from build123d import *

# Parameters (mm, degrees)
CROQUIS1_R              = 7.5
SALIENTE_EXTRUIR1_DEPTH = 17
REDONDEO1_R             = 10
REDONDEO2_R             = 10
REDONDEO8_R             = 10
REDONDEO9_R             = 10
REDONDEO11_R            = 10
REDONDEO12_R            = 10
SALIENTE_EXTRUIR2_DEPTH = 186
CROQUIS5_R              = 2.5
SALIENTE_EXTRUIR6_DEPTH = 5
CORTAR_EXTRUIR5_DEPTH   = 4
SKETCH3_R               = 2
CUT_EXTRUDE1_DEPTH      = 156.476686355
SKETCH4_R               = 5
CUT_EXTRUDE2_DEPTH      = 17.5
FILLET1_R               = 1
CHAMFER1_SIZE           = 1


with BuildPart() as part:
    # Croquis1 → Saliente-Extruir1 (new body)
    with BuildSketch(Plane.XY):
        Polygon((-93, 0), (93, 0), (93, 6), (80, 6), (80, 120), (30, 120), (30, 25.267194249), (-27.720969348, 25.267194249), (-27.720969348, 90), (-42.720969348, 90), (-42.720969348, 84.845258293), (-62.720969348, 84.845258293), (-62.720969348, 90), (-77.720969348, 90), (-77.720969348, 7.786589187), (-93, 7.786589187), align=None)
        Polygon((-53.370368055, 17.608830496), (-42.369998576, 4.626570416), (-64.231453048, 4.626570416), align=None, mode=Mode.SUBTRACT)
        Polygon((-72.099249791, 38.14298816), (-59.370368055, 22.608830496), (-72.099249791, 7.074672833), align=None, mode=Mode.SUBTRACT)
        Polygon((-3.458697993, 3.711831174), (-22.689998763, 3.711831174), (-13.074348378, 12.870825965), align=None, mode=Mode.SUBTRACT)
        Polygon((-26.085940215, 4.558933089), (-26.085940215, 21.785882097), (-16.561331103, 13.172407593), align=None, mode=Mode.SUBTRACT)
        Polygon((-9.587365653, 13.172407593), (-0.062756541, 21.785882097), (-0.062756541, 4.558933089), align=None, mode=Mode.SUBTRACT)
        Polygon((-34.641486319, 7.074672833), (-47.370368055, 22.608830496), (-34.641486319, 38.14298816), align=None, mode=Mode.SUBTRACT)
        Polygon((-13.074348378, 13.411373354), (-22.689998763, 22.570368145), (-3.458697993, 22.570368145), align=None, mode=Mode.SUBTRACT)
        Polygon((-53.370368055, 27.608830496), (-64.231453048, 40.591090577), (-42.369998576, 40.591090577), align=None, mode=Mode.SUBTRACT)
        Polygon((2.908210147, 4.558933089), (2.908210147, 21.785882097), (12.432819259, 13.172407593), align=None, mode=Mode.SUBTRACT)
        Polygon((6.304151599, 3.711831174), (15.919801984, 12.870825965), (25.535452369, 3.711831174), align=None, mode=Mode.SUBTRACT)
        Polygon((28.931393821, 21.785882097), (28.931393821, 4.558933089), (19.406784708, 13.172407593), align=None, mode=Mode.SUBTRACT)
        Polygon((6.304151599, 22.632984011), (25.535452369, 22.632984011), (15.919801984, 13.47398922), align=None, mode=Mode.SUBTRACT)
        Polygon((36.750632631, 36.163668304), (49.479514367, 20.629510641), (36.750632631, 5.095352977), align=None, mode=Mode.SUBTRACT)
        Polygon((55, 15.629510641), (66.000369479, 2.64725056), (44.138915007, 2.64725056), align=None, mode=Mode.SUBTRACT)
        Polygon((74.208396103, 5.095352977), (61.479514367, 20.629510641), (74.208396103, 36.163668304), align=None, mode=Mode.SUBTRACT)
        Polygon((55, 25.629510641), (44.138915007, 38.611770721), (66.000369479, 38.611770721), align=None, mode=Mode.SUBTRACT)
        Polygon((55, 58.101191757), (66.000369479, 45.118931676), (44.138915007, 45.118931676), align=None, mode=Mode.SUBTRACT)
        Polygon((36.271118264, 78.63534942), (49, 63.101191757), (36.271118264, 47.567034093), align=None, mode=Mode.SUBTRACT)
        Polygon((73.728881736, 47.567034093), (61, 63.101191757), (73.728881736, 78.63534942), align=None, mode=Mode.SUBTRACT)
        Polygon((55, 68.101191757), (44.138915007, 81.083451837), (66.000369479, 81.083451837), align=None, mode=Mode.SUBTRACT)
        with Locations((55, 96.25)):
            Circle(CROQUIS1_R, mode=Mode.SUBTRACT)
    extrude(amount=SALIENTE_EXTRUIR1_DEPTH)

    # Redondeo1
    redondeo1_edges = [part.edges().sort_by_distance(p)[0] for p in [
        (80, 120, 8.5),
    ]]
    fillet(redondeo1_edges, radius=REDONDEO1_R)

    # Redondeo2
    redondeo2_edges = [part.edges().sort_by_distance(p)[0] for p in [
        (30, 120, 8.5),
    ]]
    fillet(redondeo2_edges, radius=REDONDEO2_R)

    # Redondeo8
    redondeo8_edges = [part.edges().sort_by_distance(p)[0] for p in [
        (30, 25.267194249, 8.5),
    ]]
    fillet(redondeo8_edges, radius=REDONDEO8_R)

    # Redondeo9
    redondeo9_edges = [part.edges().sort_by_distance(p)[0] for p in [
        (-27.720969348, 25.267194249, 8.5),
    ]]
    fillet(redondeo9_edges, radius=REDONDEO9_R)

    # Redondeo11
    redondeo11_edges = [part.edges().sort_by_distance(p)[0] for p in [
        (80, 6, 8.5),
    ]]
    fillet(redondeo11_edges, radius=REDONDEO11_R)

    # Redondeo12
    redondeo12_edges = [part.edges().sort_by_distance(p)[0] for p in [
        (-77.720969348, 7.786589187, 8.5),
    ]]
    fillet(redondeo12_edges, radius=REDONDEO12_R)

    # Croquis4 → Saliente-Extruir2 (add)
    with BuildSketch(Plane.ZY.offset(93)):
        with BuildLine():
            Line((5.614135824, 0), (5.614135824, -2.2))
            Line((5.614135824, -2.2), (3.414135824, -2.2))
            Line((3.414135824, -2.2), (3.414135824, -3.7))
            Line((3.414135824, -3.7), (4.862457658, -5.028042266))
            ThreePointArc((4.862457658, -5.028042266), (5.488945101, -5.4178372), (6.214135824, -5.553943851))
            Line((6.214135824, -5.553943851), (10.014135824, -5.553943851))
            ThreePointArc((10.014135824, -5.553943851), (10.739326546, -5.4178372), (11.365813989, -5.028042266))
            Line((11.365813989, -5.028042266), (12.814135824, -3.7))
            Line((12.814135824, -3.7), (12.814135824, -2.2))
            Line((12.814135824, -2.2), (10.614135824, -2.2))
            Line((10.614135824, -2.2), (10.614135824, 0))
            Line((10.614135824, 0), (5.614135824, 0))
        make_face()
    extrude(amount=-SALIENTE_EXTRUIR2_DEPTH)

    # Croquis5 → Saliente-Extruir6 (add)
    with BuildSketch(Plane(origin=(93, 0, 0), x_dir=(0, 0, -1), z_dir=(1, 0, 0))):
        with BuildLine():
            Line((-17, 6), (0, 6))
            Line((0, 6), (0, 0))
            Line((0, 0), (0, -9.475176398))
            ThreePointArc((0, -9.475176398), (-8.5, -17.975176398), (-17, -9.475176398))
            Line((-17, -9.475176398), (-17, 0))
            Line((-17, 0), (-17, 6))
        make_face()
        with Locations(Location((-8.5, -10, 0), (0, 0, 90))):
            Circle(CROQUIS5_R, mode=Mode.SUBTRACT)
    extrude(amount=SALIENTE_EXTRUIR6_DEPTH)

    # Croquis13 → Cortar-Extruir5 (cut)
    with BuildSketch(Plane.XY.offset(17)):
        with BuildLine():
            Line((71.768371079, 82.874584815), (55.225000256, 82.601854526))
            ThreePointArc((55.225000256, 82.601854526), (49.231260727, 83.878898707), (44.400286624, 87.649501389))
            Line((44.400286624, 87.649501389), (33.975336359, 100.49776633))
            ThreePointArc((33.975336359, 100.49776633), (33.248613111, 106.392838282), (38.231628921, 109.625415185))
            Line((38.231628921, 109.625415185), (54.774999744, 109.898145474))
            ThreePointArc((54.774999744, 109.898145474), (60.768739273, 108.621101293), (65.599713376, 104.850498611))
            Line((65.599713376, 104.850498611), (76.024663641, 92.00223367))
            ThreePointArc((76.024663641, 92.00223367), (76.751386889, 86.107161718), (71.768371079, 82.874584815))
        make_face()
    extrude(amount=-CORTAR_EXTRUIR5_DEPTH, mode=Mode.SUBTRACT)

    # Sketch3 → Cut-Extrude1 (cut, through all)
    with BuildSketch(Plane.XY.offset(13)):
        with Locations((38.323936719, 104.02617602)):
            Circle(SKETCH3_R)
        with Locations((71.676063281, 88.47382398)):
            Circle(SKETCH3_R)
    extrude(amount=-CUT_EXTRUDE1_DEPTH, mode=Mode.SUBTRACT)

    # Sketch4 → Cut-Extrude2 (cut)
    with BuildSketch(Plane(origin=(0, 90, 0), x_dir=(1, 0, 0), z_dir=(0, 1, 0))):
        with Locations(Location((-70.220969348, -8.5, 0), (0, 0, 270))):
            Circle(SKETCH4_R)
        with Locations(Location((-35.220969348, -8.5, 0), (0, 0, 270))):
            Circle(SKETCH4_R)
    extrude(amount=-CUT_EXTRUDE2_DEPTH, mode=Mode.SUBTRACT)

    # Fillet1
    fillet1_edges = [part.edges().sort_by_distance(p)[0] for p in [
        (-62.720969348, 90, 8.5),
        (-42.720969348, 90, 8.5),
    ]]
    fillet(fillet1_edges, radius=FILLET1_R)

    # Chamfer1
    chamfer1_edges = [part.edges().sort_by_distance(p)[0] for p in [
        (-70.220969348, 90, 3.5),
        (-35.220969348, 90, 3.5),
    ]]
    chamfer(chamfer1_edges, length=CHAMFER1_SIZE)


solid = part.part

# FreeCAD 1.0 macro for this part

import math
import FreeCAD as App
import Part
import Sketcher


def edges_at(feature, points):
    """Names of the edges that pass closest to the given points."""
    edges = feature.Shape.Edges
    near = lambda p: min(range(len(edges)), key=lambda i: edges[i].distToShape(Part.Vertex(*p))[0])
    return sorted({f"Edge{near(p) + 1}" for p in points})

doc = App.newDocument("Part")
params = doc.addObject("Spreadsheet::Sheet", "Params")
for row, (alias, value) in enumerate([
    ("sketch1_diameter", "15 mm"),
    ("sketch1_width", "186 mm"),
    ("sketch1_width2", "13 mm"),
    ("sketch1_width3", "50 mm"),
    ("sketch1_width4", "15 mm"),
    ("pad1_length", "17 mm"),
    ("fillet_radius", "10 mm"),
    ("fillet2_radius", "10 mm"),
    ("fillet3_radius", "10 mm"),
    ("fillet4_radius", "10 mm"),
    ("fillet5_radius", "10 mm"),
    ("fillet6_radius", "10 mm"),
    ("sketch2_radius", "2 mm"),
    ("sketch2_height", "5 mm"),
    ("sketch2_width", "2.2 mm"),
    ("sketch2_width2", "1.5 mm"),
    ("sketch2_height2", "3.8 mm"),
    ("pad2_length", "186 mm"),
    ("sketch3_diameter", "5 mm"),
    ("sketch3_radius", "8.5 mm"),
    ("pad3_length", "5 mm"),
    ("sketch4_radius", "5.6 mm"),
    ("sketch4_radius2", "13.65 mm"),
    ("pocket1_length", "4 mm"),
    ("sketch5_diameter", "4 mm"),
    ("sketch6_diameter", "10 mm"),
    ("pocket3_length", "17.5 mm"),
    ("fillet7_radius", "1 mm"),
    ("chamfer_size", "1 mm"),
], start=1):
    params.set(f"A{row}", alias)
    params.set(f"B{row}", "=" + value)
    params.setAlias(f"B{row}", alias)

body = doc.addObject("PartDesign::Body", "Body")

# Sketch on XY plane
sketch1 = body.newObject("Sketcher::SketchObject", "Sketch")
sketch1.AttachmentSupport = (doc.getObject("XY_Plane"), [""])
sketch1.MapMode = "FlatFace"
sketch1.addGeometry([
    Part.LineSegment(App.Vector(-93, 0, 0), App.Vector(93, 0, 0)),  # 0
    Part.LineSegment(App.Vector(93, 0, 0), App.Vector(93, 6, 0)),  # 1
    Part.LineSegment(App.Vector(93, 6, 0), App.Vector(80, 6, 0)),  # 2
    Part.LineSegment(App.Vector(80, 6, 0), App.Vector(80, 120, 0)),  # 3
    Part.LineSegment(App.Vector(80, 120, 0), App.Vector(30, 120, 0)),  # 4
    Part.LineSegment(App.Vector(30, 120, 0), App.Vector(30, 25, 0)),  # 5
    Part.LineSegment(App.Vector(30, 25, 0), App.Vector(-28, 25, 0)),  # 6
    Part.LineSegment(App.Vector(-28, 25, 0), App.Vector(-28, 90, 0)),  # 7
    Part.LineSegment(App.Vector(-28, 90, 0), App.Vector(-43, 90, 0)),  # 8
    Part.LineSegment(App.Vector(-43, 90, 0), App.Vector(-43, 85, 0)),  # 9
    Part.LineSegment(App.Vector(-43, 85, 0), App.Vector(-63, 85, 0)),  # 10
    Part.LineSegment(App.Vector(-63, 85, 0), App.Vector(-63, 90, 0)),  # 11
    Part.LineSegment(App.Vector(-63, 90, 0), App.Vector(-78, 90, 0)),  # 12
    Part.LineSegment(App.Vector(-78, 90, 0), App.Vector(-78, 8, 0)),  # 13
    Part.LineSegment(App.Vector(-78, 8, 0), App.Vector(-93, 8, 0)),  # 14
    Part.LineSegment(App.Vector(-93, 8, 0), App.Vector(-93, 0, 0)),  # 15
    Part.LineSegment(App.Vector(-64, 5, 0), App.Vector(-53, 18, 0)),  # 16
    Part.LineSegment(App.Vector(-53, 18, 0), App.Vector(-42, 5, 0)),  # 17
    Part.LineSegment(App.Vector(-42, 5, 0), App.Vector(-64, 5, 0)),  # 18
    Part.LineSegment(App.Vector(-72, 7, 0), App.Vector(-72, 38, 0)),  # 19
    Part.LineSegment(App.Vector(-72, 38, 0), App.Vector(-59, 23, 0)),  # 20
    Part.LineSegment(App.Vector(-59, 23, 0), App.Vector(-72, 7, 0)),  # 21
    Part.LineSegment(App.Vector(-35, 38, 0), App.Vector(-35, 7, 0)),  # 22
    Part.LineSegment(App.Vector(-35, 7, 0), App.Vector(-47, 23, 0)),  # 23
    Part.LineSegment(App.Vector(-47, 23, 0), App.Vector(-35, 38, 0)),  # 24
    Part.LineSegment(App.Vector(-17, 13, 0), App.Vector(-26, 5, 0)),  # 25
    Part.LineSegment(App.Vector(-26, 5, 0), App.Vector(-26, 22, 0)),  # 26
    Part.LineSegment(App.Vector(-26, 22, 0), App.Vector(-17, 13, 0)),  # 27
    Part.LineSegment(App.Vector(-13, 13, 0), App.Vector(-3, 4, 0)),  # 28
    Part.LineSegment(App.Vector(-3, 4, 0), App.Vector(-23, 4, 0)),  # 29
    Part.LineSegment(App.Vector(-23, 4, 0), App.Vector(-13, 13, 0)),  # 30
    Part.LineSegment(App.Vector(0, 5, 0), App.Vector(-10, 13, 0)),  # 31
    Part.LineSegment(App.Vector(-10, 13, 0), App.Vector(0, 22, 0)),  # 32
    Part.LineSegment(App.Vector(0, 22, 0), App.Vector(0, 5, 0)),  # 33
    Part.LineSegment(App.Vector(-3, 23, 0), App.Vector(-13, 13, 0)),  # 34
    Part.LineSegment(App.Vector(-13, 13, 0), App.Vector(-23, 23, 0)),  # 35
    Part.LineSegment(App.Vector(-23, 23, 0), App.Vector(-3, 23, 0)),  # 36
    Part.LineSegment(App.Vector(-42, 41, 0), App.Vector(-53, 28, 0)),  # 37
    Part.LineSegment(App.Vector(-53, 28, 0), App.Vector(-64, 41, 0)),  # 38
    Part.LineSegment(App.Vector(-64, 41, 0), App.Vector(-42, 41, 0)),  # 39
    Part.LineSegment(App.Vector(26, 4, 0), App.Vector(6, 4, 0)),  # 40
    Part.LineSegment(App.Vector(6, 4, 0), App.Vector(16, 13, 0)),  # 41
    Part.LineSegment(App.Vector(16, 13, 0), App.Vector(26, 4, 0)),  # 42
    Part.LineSegment(App.Vector(12, 13, 0), App.Vector(3, 5, 0)),  # 43
    Part.LineSegment(App.Vector(3, 5, 0), App.Vector(3, 22, 0)),  # 44
    Part.LineSegment(App.Vector(3, 22, 0), App.Vector(12, 13, 0)),  # 45
    Part.LineSegment(App.Vector(19, 13, 0), App.Vector(29, 22, 0)),  # 46
    Part.LineSegment(App.Vector(29, 22, 0), App.Vector(29, 5, 0)),  # 47
    Part.LineSegment(App.Vector(29, 5, 0), App.Vector(19, 13, 0)),  # 48
    Part.LineSegment(App.Vector(16, 13, 0), App.Vector(6, 23, 0)),  # 49
    Part.LineSegment(App.Vector(6, 23, 0), App.Vector(26, 23, 0)),  # 50
    Part.LineSegment(App.Vector(26, 23, 0), App.Vector(16, 13, 0)),  # 51
    Part.LineSegment(App.Vector(44, 3, 0), App.Vector(55, 16, 0)),  # 52
    Part.LineSegment(App.Vector(55, 16, 0), App.Vector(66, 3, 0)),  # 53
    Part.LineSegment(App.Vector(66, 3, 0), App.Vector(44, 3, 0)),  # 54
    Part.LineSegment(App.Vector(37, 5, 0), App.Vector(37, 36, 0)),  # 55
    Part.LineSegment(App.Vector(37, 36, 0), App.Vector(49, 21, 0)),  # 56
    Part.LineSegment(App.Vector(49, 21, 0), App.Vector(37, 5, 0)),  # 57
    Part.LineSegment(App.Vector(74, 36, 0), App.Vector(74, 5, 0)),  # 58
    Part.LineSegment(App.Vector(74, 5, 0), App.Vector(61, 21, 0)),  # 59
    Part.LineSegment(App.Vector(61, 21, 0), App.Vector(74, 36, 0)),  # 60
    Part.LineSegment(App.Vector(66, 39, 0), App.Vector(55, 26, 0)),  # 61
    Part.LineSegment(App.Vector(55, 26, 0), App.Vector(44, 39, 0)),  # 62
    Part.LineSegment(App.Vector(44, 39, 0), App.Vector(66, 39, 0)),  # 63
    Part.LineSegment(App.Vector(44, 45, 0), App.Vector(55, 58, 0)),  # 64
    Part.LineSegment(App.Vector(55, 58, 0), App.Vector(66, 45, 0)),  # 65
    Part.LineSegment(App.Vector(66, 45, 0), App.Vector(44, 45, 0)),  # 66
    Part.LineSegment(App.Vector(36, 48, 0), App.Vector(36, 79, 0)),  # 67
    Part.LineSegment(App.Vector(36, 79, 0), App.Vector(49, 63, 0)),  # 68
    Part.LineSegment(App.Vector(49, 63, 0), App.Vector(36, 48, 0)),  # 69
    Part.LineSegment(App.Vector(74, 79, 0), App.Vector(74, 48, 0)),  # 70
    Part.LineSegment(App.Vector(74, 48, 0), App.Vector(61, 63, 0)),  # 71
    Part.LineSegment(App.Vector(61, 63, 0), App.Vector(74, 79, 0)),  # 72
    Part.LineSegment(App.Vector(66, 81, 0), App.Vector(55, 68, 0)),  # 73
    Part.LineSegment(App.Vector(55, 68, 0), App.Vector(44, 81, 0)),  # 74
    Part.LineSegment(App.Vector(44, 81, 0), App.Vector(66, 81, 0)),  # 75
    Part.Circle(App.Vector(55, 96, 0), App.Vector(0, 0, 1), 8),  # 76
], False)
sketch1.addConstraint([
    Sketcher.Constraint("Coincident", 0, 2, 1, 1),
    Sketcher.Constraint("Coincident", 1, 2, 2, 1),
    Sketcher.Constraint("Coincident", 2, 2, 3, 1),
    Sketcher.Constraint("Coincident", 3, 2, 4, 1),
    Sketcher.Constraint("Coincident", 4, 2, 5, 1),
    Sketcher.Constraint("Coincident", 5, 2, 6, 1),
    Sketcher.Constraint("Coincident", 6, 2, 7, 1),
    Sketcher.Constraint("Coincident", 7, 2, 8, 1),
    Sketcher.Constraint("Coincident", 8, 2, 9, 1),
    Sketcher.Constraint("Coincident", 9, 2, 10, 1),
    Sketcher.Constraint("Coincident", 10, 2, 11, 1),
    Sketcher.Constraint("Coincident", 11, 2, 12, 1),
    Sketcher.Constraint("Coincident", 12, 2, 13, 1),
    Sketcher.Constraint("Coincident", 13, 2, 14, 1),
    Sketcher.Constraint("Coincident", 14, 2, 15, 1),
    Sketcher.Constraint("Coincident", 15, 2, 0, 1),
    Sketcher.Constraint("Coincident", 16, 2, 17, 1),
    Sketcher.Constraint("Coincident", 17, 2, 18, 1),
    Sketcher.Constraint("Coincident", 18, 2, 16, 1),
    Sketcher.Constraint("Coincident", 19, 2, 20, 1),
    Sketcher.Constraint("Coincident", 20, 2, 21, 1),
    Sketcher.Constraint("Coincident", 21, 2, 19, 1),
    Sketcher.Constraint("Coincident", 22, 2, 23, 1),
    Sketcher.Constraint("Coincident", 23, 2, 24, 1),
    Sketcher.Constraint("Coincident", 24, 2, 22, 1),
    Sketcher.Constraint("Coincident", 25, 2, 26, 1),
    Sketcher.Constraint("Coincident", 26, 2, 27, 1),
    Sketcher.Constraint("Coincident", 27, 2, 25, 1),
    Sketcher.Constraint("Coincident", 28, 2, 29, 1),
    Sketcher.Constraint("Coincident", 29, 2, 30, 1),
    Sketcher.Constraint("Coincident", 30, 2, 28, 1),
    Sketcher.Constraint("Coincident", 31, 2, 32, 1),
    Sketcher.Constraint("Coincident", 32, 2, 33, 1),
    Sketcher.Constraint("Coincident", 33, 2, 31, 1),
    Sketcher.Constraint("Coincident", 34, 2, 35, 1),
    Sketcher.Constraint("Coincident", 35, 2, 36, 1),
    Sketcher.Constraint("Coincident", 36, 2, 34, 1),
    Sketcher.Constraint("Coincident", 37, 2, 38, 1),
    Sketcher.Constraint("Coincident", 38, 2, 39, 1),
    Sketcher.Constraint("Coincident", 39, 2, 37, 1),
    Sketcher.Constraint("Coincident", 40, 2, 41, 1),
    Sketcher.Constraint("Coincident", 41, 2, 42, 1),
    Sketcher.Constraint("Coincident", 42, 2, 40, 1),
    Sketcher.Constraint("Coincident", 43, 2, 44, 1),
    Sketcher.Constraint("Coincident", 44, 2, 45, 1),
    Sketcher.Constraint("Coincident", 45, 2, 43, 1),
    Sketcher.Constraint("Coincident", 46, 2, 47, 1),
    Sketcher.Constraint("Coincident", 47, 2, 48, 1),
    Sketcher.Constraint("Coincident", 48, 2, 46, 1),
    Sketcher.Constraint("Coincident", 49, 2, 50, 1),
    Sketcher.Constraint("Coincident", 50, 2, 51, 1),
    Sketcher.Constraint("Coincident", 51, 2, 49, 1),
    Sketcher.Constraint("Coincident", 52, 2, 53, 1),
    Sketcher.Constraint("Coincident", 53, 2, 54, 1),
    Sketcher.Constraint("Coincident", 54, 2, 52, 1),
    Sketcher.Constraint("Coincident", 55, 2, 56, 1),
    Sketcher.Constraint("Coincident", 56, 2, 57, 1),
    Sketcher.Constraint("Coincident", 57, 2, 55, 1),
    Sketcher.Constraint("Coincident", 58, 2, 59, 1),
    Sketcher.Constraint("Coincident", 59, 2, 60, 1),
    Sketcher.Constraint("Coincident", 60, 2, 58, 1),
    Sketcher.Constraint("Coincident", 61, 2, 62, 1),
    Sketcher.Constraint("Coincident", 62, 2, 63, 1),
    Sketcher.Constraint("Coincident", 63, 2, 61, 1),
    Sketcher.Constraint("Coincident", 64, 2, 65, 1),
    Sketcher.Constraint("Coincident", 65, 2, 66, 1),
    Sketcher.Constraint("Coincident", 66, 2, 64, 1),
    Sketcher.Constraint("Coincident", 67, 2, 68, 1),
    Sketcher.Constraint("Coincident", 68, 2, 69, 1),
    Sketcher.Constraint("Coincident", 69, 2, 67, 1),
    Sketcher.Constraint("Coincident", 70, 2, 71, 1),
    Sketcher.Constraint("Coincident", 71, 2, 72, 1),
    Sketcher.Constraint("Coincident", 72, 2, 70, 1),
    Sketcher.Constraint("Coincident", 73, 2, 74, 1),
    Sketcher.Constraint("Coincident", 74, 2, 75, 1),
    Sketcher.Constraint("Coincident", 75, 2, 73, 1),
    Sketcher.Constraint("Horizontal", 0),
    Sketcher.Constraint("Vertical", 1),
    Sketcher.Constraint("Horizontal", 2),
    Sketcher.Constraint("Vertical", 3),
    Sketcher.Constraint("Horizontal", 4),
    Sketcher.Constraint("Vertical", 5),
    Sketcher.Constraint("Horizontal", 6),
    Sketcher.Constraint("Vertical", 7),
    Sketcher.Constraint("Horizontal", 8),
    Sketcher.Constraint("Vertical", 9),
    Sketcher.Constraint("Horizontal", 10),
    Sketcher.Constraint("Vertical", 11),
    Sketcher.Constraint("Horizontal", 12),
    Sketcher.Constraint("Vertical", 13),
    Sketcher.Constraint("Horizontal", 14),
    Sketcher.Constraint("Vertical", 15),
    Sketcher.Constraint("Horizontal", 18),
    Sketcher.Constraint("Vertical", 19),
    Sketcher.Constraint("Vertical", 22),
    Sketcher.Constraint("Vertical", 26),
    Sketcher.Constraint("Horizontal", 29),
    Sketcher.Constraint("Vertical", 33),
    Sketcher.Constraint("Horizontal", 36),
    Sketcher.Constraint("Horizontal", 39),
    Sketcher.Constraint("Horizontal", 40),
    Sketcher.Constraint("Vertical", 44),
    Sketcher.Constraint("Vertical", 47),
    Sketcher.Constraint("Horizontal", 50),
    Sketcher.Constraint("Horizontal", 54),
    Sketcher.Constraint("Vertical", 55),
    Sketcher.Constraint("Vertical", 58),
    Sketcher.Constraint("Horizontal", 63),
    Sketcher.Constraint("Horizontal", 66),
    Sketcher.Constraint("Vertical", 67),
    Sketcher.Constraint("Vertical", 70),
    Sketcher.Constraint("Horizontal", 75),
    Sketcher.Constraint("Symmetric", 0, 2, 15, 2, -1, 1),
    Sketcher.Constraint("Parallel", 20, 23),
    Sketcher.Constraint("Parallel", 21, 24),
    Sketcher.Constraint("Parallel", 27, 31),
    Sketcher.Constraint("Parallel", 25, 32),
    Sketcher.Constraint("Parallel", 30, 34),
    Sketcher.Constraint("Parallel", 28, 35),
    Sketcher.Constraint("Parallel", 34, 41),
    Sketcher.Constraint("Parallel", 35, 42),
    Sketcher.Constraint("Parallel", 32, 43),
    Sketcher.Constraint("Parallel", 31, 45),
    Sketcher.Constraint("Parallel", 43, 46),
    Sketcher.Constraint("Parallel", 45, 48),
    Sketcher.Constraint("Parallel", 42, 49),
    Sketcher.Constraint("Parallel", 41, 51),
    Sketcher.Constraint("Parallel", 16, 52),
    Sketcher.Constraint("Parallel", 17, 53),
    Sketcher.Constraint("Parallel", 23, 56),
    Sketcher.Constraint("Parallel", 24, 57),
    Sketcher.Constraint("Parallel", 56, 59),
    Sketcher.Constraint("Parallel", 57, 60),
    Sketcher.Constraint("Parallel", 37, 61),
    Sketcher.Constraint("Parallel", 38, 62),
    Sketcher.Constraint("Parallel", 52, 64),
    Sketcher.Constraint("Parallel", 53, 65),
    Sketcher.Constraint("Parallel", 59, 68),
    Sketcher.Constraint("Parallel", 60, 69),
    Sketcher.Constraint("Parallel", 68, 71),
    Sketcher.Constraint("Parallel", 69, 72),
    Sketcher.Constraint("Parallel", 61, 73),
    Sketcher.Constraint("Parallel", 62, 74),
    Sketcher.Constraint("Horizontal", 8, 2, 11, 2),
    Sketcher.Constraint("Horizontal", 21, 2, 22, 2),
    Sketcher.Constraint("Horizontal", 20, 2, 23, 2),
    Sketcher.Constraint("Horizontal", 19, 2, 24, 2),
    Sketcher.Constraint("Horizontal", 27, 2, 31, 2),
    Sketcher.Constraint("Horizontal", 26, 2, 32, 2),
    Sketcher.Constraint("Horizontal", 25, 2, 33, 2),
    Sketcher.Constraint("Horizontal", 29, 2, 40, 2),
    Sketcher.Constraint("Horizontal", 30, 2, 41, 2),
    Sketcher.Constraint("Horizontal", 33, 2, 43, 2),
    Sketcher.Constraint("Horizontal", 32, 2, 44, 2),
    Sketcher.Constraint("Horizontal", 44, 2, 46, 2),
    Sketcher.Constraint("Horizontal", 43, 2, 47, 2),
    Sketcher.Constraint("Horizontal", 57, 2, 58, 2),
    Sketcher.Constraint("Horizontal", 56, 2, 59, 2),
    Sketcher.Constraint("Horizontal", 69, 2, 70, 2),
    Sketcher.Constraint("Horizontal", 68, 2, 71, 2),
    Sketcher.Constraint("Vertical", 30, 2, 34, 2),
    Sketcher.Constraint("Vertical", 29, 2, 35, 2),
    Sketcher.Constraint("Vertical", 28, 2, 36, 2),
    Sketcher.Constraint("Vertical", 16, 2, 37, 2),
    Sketcher.Constraint("Vertical", 18, 2, 38, 2),
    Sketcher.Constraint("Vertical", 17, 2, 39, 2),
    Sketcher.Constraint("Vertical", 40, 2, 49, 2),
    Sketcher.Constraint("Vertical", 42, 2, 50, 2),
    Sketcher.Constraint("Vertical", 76, 3, 52, 2),
    Sketcher.Constraint("Vertical", 52, 2, 61, 2),
    Sketcher.Constraint("Vertical", 54, 2, 62, 2),
    Sketcher.Constraint("Vertical", 61, 2, 64, 2),
    Sketcher.Constraint("Vertical", 63, 2, 65, 2),
    Sketcher.Constraint("Vertical", 64, 2, 73, 2),
    Sketcher.Constraint("Vertical", 66, 2, 74, 2),
    Sketcher.Constraint("Equal", 8, 12),
    Sketcher.Constraint("Equal", 39, 54),
    Sketcher.Constraint("Equal", 22, 55),
    Sketcher.Constraint("Equal", 58, 67),
    Sketcher.Constraint("Equal", 17, 37),
    Sketcher.Constraint("Diameter", 76, 15.0),
    Sketcher.Constraint("DistanceX", 0, 1, 0, 2, 186.0),
    Sketcher.Constraint("DistanceX", 2, 2, 2, 1, 13.0),
    Sketcher.Constraint("DistanceX", 4, 2, 4, 1, 50.0),
    Sketcher.Constraint("DistanceX", 8, 2, 8, 1, 15.0),
    Sketcher.Constraint("DistanceX", 10, 2, 10, 1, 20.0),
    Sketcher.Constraint("DistanceY", 1, 1, 1, 2, 6.0),
    Sketcher.Constraint("DistanceY", 3, 1, 3, 2, 114.0),
    Sketcher.Constraint("DistanceX", -1, 1, 76, 3, 55.0),
    Sketcher.Constraint("DistanceY", -1, 1, 7, 2, 90.0),
    Sketcher.Constraint("DistanceX", -1, 1, 68, 2, 49.0),
    Sketcher.Constraint("DistanceX", -1, 1, 71, 2, 61.0),
    Sketcher.Constraint("DistanceY", -1, 1, 76, 3, 96.25),
    Sketcher.Constraint("DistanceX", 17, 2, -1, 1, 42.369999),
    Sketcher.Constraint("DistanceX", 29, 2, -1, 1, 22.689999),
    Sketcher.Constraint("DistanceX", 29, 2, 29, 1, 19.231301),
    Sketcher.Constraint("DistanceX", 6, 2, 6, 1, 57.720969),
    Sketcher.Constraint("DistanceY", 9, 2, 9, 1, 5.154742),
    Sketcher.Constraint("DistanceY", 13, 2, 13, 1, 82.213411),
    Sketcher.Constraint("DistanceY", 26, 1, 26, 2, 17.226949),
    Sketcher.Constraint("DistanceX", -1, 1, 41, 2, 15.919802),
    Sketcher.Constraint("Distance", 20, 20.083189),
    Sketcher.Constraint("DistanceX", 18, 2, 18, 1, 21.861454),
    Sketcher.Constraint("DistanceY", 5, 2, 5, 1, 94.732806),
    Sketcher.Constraint("DistanceY", 19, 1, 19, 2, 31.068315),
    Sketcher.Constraint("DistanceX", 16, 2, -1, 1, 53.370368),
    Sketcher.Constraint("DistanceY", -1, 1, 16, 2, 17.60883),
    Sketcher.Constraint("DistanceY", -1, 1, 17, 2, 4.62657),
    Sketcher.Constraint("DistanceX", 19, 2, -1, 1, 72.09925),
    Sketcher.Constraint("DistanceY", -1, 1, 19, 2, 38.142988),
    Sketcher.Constraint("DistanceX", 23, 2, -1, 1, 47.370368),
    Sketcher.Constraint("DistanceX", 25, 2, -1, 1, 26.08594),
    Sketcher.Constraint("DistanceX", 27, 2, -1, 1, 16.561331),
    Sketcher.Constraint("DistanceY", -1, 1, 28, 2, 3.711831),
    Sketcher.Constraint("DistanceY", -1, 1, 35, 2, 22.570368),
    Sketcher.Constraint("DistanceY", -1, 1, 37, 2, 27.60883),
    Sketcher.Constraint("DistanceX", -1, 1, 43, 2, 2.90821),
    Sketcher.Constraint("DistanceY", -1, 1, 51, 2, 13.473989),
    Sketcher.Constraint("DistanceY", -1, 1, 52, 2, 15.629511),
    Sketcher.Constraint("DistanceY", -1, 1, 55, 2, 36.163668),
    Sketcher.Constraint("DistanceY", -1, 1, 61, 2, 25.629511),
    Sketcher.Constraint("DistanceY", -1, 1, 64, 2, 58.101192),
    Sketcher.Constraint("DistanceY", -1, 1, 67, 2, 78.635349),
    Sketcher.Constraint("DistanceY", -1, 1, 73, 2, 68.101192),
    Sketcher.Constraint("Distance", 28, 13.279605),
    Sketcher.Constraint("DistanceY", -1, 1, 25, 2, 4.558933),
    Sketcher.Constraint("DistanceX", 31, 2, -1, 1, 9.587366),
    Sketcher.Constraint("DistanceX", -1, 1, 46, 2, 28.931394),
    Sketcher.Constraint("DistanceX", -1, 1, 55, 2, 36.750633),
    Sketcher.Constraint("DistanceX", -1, 1, 58, 2, 74.208396),
])
sketch1.setExpression("Constraints[180]", "Params.sketch1_diameter")
sketch1.setExpression("Constraints[181]", "Params.sketch1_width")
sketch1.setExpression("Constraints[182]", "Params.sketch1_width2")
sketch1.setExpression("Constraints[183]", "Params.sketch1_width3")
sketch1.setExpression("Constraints[184]", "Params.sketch1_width4")
pad1 = body.newObject("PartDesign::Pad", "Pad")
pad1.Profile = sketch1
pad1.setExpression("Length", "Params.pad1_length")
doc.recompute()

fillet = body.newObject("PartDesign::Fillet", "Fillet")
fillet.Base = (pad1, edges_at(pad1, [(80, 120, 8.5)]))
fillet.setExpression("Radius", "Params.fillet_radius")
doc.recompute()

fillet2 = body.newObject("PartDesign::Fillet", "Fillet001")
fillet2.Base = (fillet, edges_at(fillet, [(30, 120, 8.5)]))
fillet2.setExpression("Radius", "Params.fillet2_radius")
doc.recompute()

fillet3 = body.newObject("PartDesign::Fillet", "Fillet002")
fillet3.Base = (fillet2, edges_at(fillet2, [(30, 25.267, 8.5)]))
fillet3.setExpression("Radius", "Params.fillet3_radius")
doc.recompute()

fillet4 = body.newObject("PartDesign::Fillet", "Fillet003")
fillet4.Base = (fillet3, edges_at(fillet3, [(-27.721, 25.267, 8.5)]))
fillet4.setExpression("Radius", "Params.fillet4_radius")
doc.recompute()

fillet5 = body.newObject("PartDesign::Fillet", "Fillet004")
fillet5.Base = (fillet4, edges_at(fillet4, [(80, 6, 8.5)]))
fillet5.setExpression("Radius", "Params.fillet5_radius")
doc.recompute()

fillet6 = body.newObject("PartDesign::Fillet", "Fillet005")
fillet6.Base = (fillet5, edges_at(fillet5, [(-77.721, 7.787, 8.5)]))
fillet6.setExpression("Radius", "Params.fillet6_radius")

# Sketch on YZ plane
sketch2 = body.newObject("Sketcher::SketchObject", "Sketch001")
sketch2.AttachmentSupport = (doc.getObject("YZ_Plane"), [""])
sketch2.MapMode = "FlatFace"
sketch2.AttachmentOffset = App.Placement(App.Vector(0, 0, -93), App.Rotation())
sketch2.addGeometry([
    Part.LineSegment(App.Vector(0, 5.6, 0), App.Vector(-2.2, 5.6, 0)),  # 0
    Part.LineSegment(App.Vector(-2.2, 5.6, 0), App.Vector(-2.2, 3.4, 0)),  # 1
    Part.LineSegment(App.Vector(-2.2, 3.4, 0), App.Vector(-3.7, 3.4, 0)),  # 2
    Part.LineSegment(App.Vector(-3.7, 3.4, 0), App.Vector(-5, 4.9, 0)),  # 3
    Part.ArcOfCircle(Part.Circle(App.Vector(-3.6, 6.2, 0), App.Vector(0, 0, 1), 2), math.radians(180), math.radians(223)),  # 4
    Part.LineSegment(App.Vector(-5.6, 6.2, 0), App.Vector(-5.6, 10, 0)),  # 5
    Part.ArcOfCircle(Part.Circle(App.Vector(-3.6, 10, 0), App.Vector(0, 0, 1), 2), math.radians(137), math.radians(180)),  # 6
    Part.LineSegment(App.Vector(-5, 11.4, 0), App.Vector(-3.7, 12.8, 0)),  # 7
    Part.LineSegment(App.Vector(-3.7, 12.8, 0), App.Vector(-2.2, 12.8, 0)),  # 8
    Part.LineSegment(App.Vector(-2.2, 12.8, 0), App.Vector(-2.2, 10.6, 0)),  # 9
    Part.LineSegment(App.Vector(-2.2, 10.6, 0), App.Vector(0, 10.6, 0)),  # 10
    Part.LineSegment(App.Vector(0, 10.6, 0), App.Vector(0, 5.6, 0)),  # 11
], False)
sketch2.addConstraint([
    Sketcher.Constraint("Coincident", 0, 2, 1, 1),
    Sketcher.Constraint("Coincident", 1, 2, 2, 1),
    Sketcher.Constraint("Coincident", 2, 2, 3, 1),
    Sketcher.Constraint("Tangent", 3, 2, 4, 2),
    Sketcher.Constraint("Tangent", 4, 1, 5, 1),
    Sketcher.Constraint("Tangent", 5, 2, 6, 2),
    Sketcher.Constraint("Tangent", 6, 1, 7, 1),
    Sketcher.Constraint("Coincident", 7, 2, 8, 1),
    Sketcher.Constraint("Coincident", 8, 2, 9, 1),
    Sketcher.Constraint("Coincident", 9, 2, 10, 1),
    Sketcher.Constraint("Coincident", 10, 2, 11, 1),
    Sketcher.Constraint("Coincident", 11, 2, 0, 1),
    Sketcher.Constraint("Horizontal", 0),
    Sketcher.Constraint("Vertical", 1),
    Sketcher.Constraint("Horizontal", 2),
    Sketcher.Constraint("Vertical", 5),
    Sketcher.Constraint("Horizontal", 8),
    Sketcher.Constraint("Vertical", 9),
    Sketcher.Constraint("Horizontal", 10),
    Sketcher.Constraint("Vertical", 11),
    Sketcher.Constraint("Equal", 4, 6),
    Sketcher.Constraint("PointOnObject", 10, 2, -2),
    Sketcher.Constraint("Vertical", 3, 2, 6, 1),
    Sketcher.Constraint("Vertical", 2, 2, 7, 2),
    Sketcher.Constraint("Vertical", 1, 2, 8, 2),
    Sketcher.Constraint("Equal", 10, 1),
    Sketcher.Constraint("Equal", 1, 9),
    Sketcher.Constraint("Radius", 4, 2.0),
    Sketcher.Constraint("DistanceY", 11, 2, 11, 1, 5.0),
    Sketcher.Constraint("DistanceX", 0, 2, 0, 1, 2.2),
    Sketcher.Constraint("DistanceX", 2, 2, 2, 1, 1.5),
    Sketcher.Constraint("DistanceY", 5, 1, 5, 2, 3.8),
    Sketcher.Constraint("DistanceX", 3, 2, 4, 3, 1.474098),
    Sketcher.Constraint("DistanceY", -1, 1, 4, 3, 6.214136),
])
sketch2.setExpression("Constraints[27]", "Params.sketch2_radius")
sketch2.setExpression("Constraints[28]", "Params.sketch2_height")
sketch2.setExpression("Constraints[29]", "Params.sketch2_width")
sketch2.setExpression("Constraints[30]", "Params.sketch2_width2")
sketch2.setExpression("Constraints[31]", "Params.sketch2_height2")
pad2 = body.newObject("PartDesign::Pad", "Pad001")
pad2.Profile = sketch2
pad2.setExpression("Length", "Params.pad2_length")

# Sketch on YZ plane
sketch3 = body.newObject("Sketcher::SketchObject", "Sketch002")
sketch3.AttachmentSupport = (doc.getObject("YZ_Plane"), [""])
sketch3.MapMode = "FlatFace"
sketch3.AttachmentOffset = App.Placement(App.Vector(0, 0, 93), App.Rotation())
sketch3.addGeometry([
    Part.LineSegment(App.Vector(6, 0, 0), App.Vector(6, 17, 0)),  # 0
    Part.LineSegment(App.Vector(6, 17, 0), App.Vector(-9.5, 17, 0)),  # 1
    Part.ArcOfCircle(Part.Circle(App.Vector(-9.5, 8.5, 0), App.Vector(0, 0, 1), 8.5), math.radians(90), math.radians(270)),  # 2
    Part.LineSegment(App.Vector(-9.5, 0, 0), App.Vector(6, 0, 0)),  # 3
    Part.Circle(App.Vector(-10, 8.5, 0), App.Vector(0, 0, 1), 2.5),  # 4
], False)
sketch3.addConstraint([
    Sketcher.Constraint("Coincident", 0, 2, 1, 1),
    Sketcher.Constraint("Tangent", 1, 2, 2, 1),
    Sketcher.Constraint("Tangent", 2, 2, 3, 1),
    Sketcher.Constraint("Coincident", 3, 2, 0, 1),
    Sketcher.Constraint("Vertical", 0),
    Sketcher.Constraint("Horizontal", 1),
    Sketcher.Constraint("Horizontal", 3),
    Sketcher.Constraint("PointOnObject", 2, 2, -1),
    Sketcher.Constraint("Horizontal", 2, 3, 4, 3),
    Sketcher.Constraint("Diameter", 4, 5.0),
    Sketcher.Constraint("Radius", 2, 8.5),
    Sketcher.Constraint("DistanceX", 4, 3, -1, 1, 10.0),
    Sketcher.Constraint("DistanceX", -1, 1, 0, 2, 6.0),
    Sketcher.Constraint("DistanceX", 1, 2, 1, 1, 15.475176),
])
sketch3.setExpression("Constraints[9]", "Params.sketch3_diameter")
sketch3.setExpression("Constraints[10]", "Params.sketch3_radius")
pad3 = body.newObject("PartDesign::Pad", "Pad002")
pad3.Profile = sketch3
pad3.setExpression("Length", "Params.pad3_length")

# Sketch on XY plane
sketch4 = body.newObject("Sketcher::SketchObject", "Sketch003")
sketch4.AttachmentSupport = (doc.getObject("XY_Plane"), [""])
sketch4.MapMode = "FlatFace"
sketch4.AttachmentOffset = App.Placement(App.Vector(0, 0, 17), App.Rotation())
sketch4.addGeometry([
    Part.LineSegment(App.Vector(55, 83, 0), App.Vector(72, 83, 0)),  # 0
    Part.ArcOfCircle(Part.Circle(App.Vector(72, 88, 0), App.Vector(0, 0, 1), 6), math.radians(-89), math.radians(39)),  # 1
    Part.LineSegment(App.Vector(76, 92, 0), App.Vector(66, 105, 0)),  # 2
    Part.ArcOfCircle(Part.Circle(App.Vector(55, 96, 0), App.Vector(0, 0, 1), 14), math.radians(39), math.radians(91)),  # 3
    Part.LineSegment(App.Vector(55, 110, 0), App.Vector(38, 110, 0)),  # 4
    Part.ArcOfCircle(Part.Circle(App.Vector(38, 104, 0), App.Vector(0, 0, 1), 6), math.radians(91), math.radians(219)),  # 5
    Part.LineSegment(App.Vector(34, 100, 0), App.Vector(44, 88, 0)),  # 6
    Part.ArcOfCircle(Part.Circle(App.Vector(55, 96, 0), App.Vector(0, 0, 1), 14), math.radians(-141), math.radians(-89)),  # 7
], False)
sketch4.addConstraint([
    Sketcher.Constraint("Tangent", 0, 2, 1, 1),
    Sketcher.Constraint("Tangent", 1, 2, 2, 1),
    Sketcher.Constraint("Tangent", 2, 2, 3, 1),
    Sketcher.Constraint("Tangent", 3, 2, 4, 1),
    Sketcher.Constraint("Tangent", 4, 2, 5, 1),
    Sketcher.Constraint("Tangent", 5, 2, 6, 1),
    Sketcher.Constraint("Tangent", 6, 2, 7, 1),
    Sketcher.Constraint("Tangent", 7, 2, 0, 1),
    Sketcher.Constraint("Coincident", 7, 3, 3, 3),
    Sketcher.Constraint("Equal", 1, 5),
    Sketcher.Constraint("Equal", 3, 7),
    Sketcher.Constraint("Parallel", 0, 4),
    Sketcher.Constraint("Parallel", 2, 6),
    Sketcher.Constraint("Radius", 1, 5.6),
    Sketcher.Constraint("Radius", 3, 13.65),
    Sketcher.Constraint("DistanceX", -1, 1, 3, 3, 55.0),
    Sketcher.Constraint("DistanceY", -1, 1, 3, 3, 96.25),
    Sketcher.Constraint("DistanceX", -1, 1, 3, 2, 54.775),
    Sketcher.Constraint("DistanceY", -1, 1, 2, 2, 104.850499),
])
sketch4.setExpression("Constraints[13]", "Params.sketch4_radius")
sketch4.setExpression("Constraints[14]", "Params.sketch4_radius2")
pocket1 = body.newObject("PartDesign::Pocket", "Pocket")
pocket1.Profile = sketch4
pocket1.setExpression("Length", "Params.pocket1_length")

# Sketch on XY plane
sketch5 = body.newObject("Sketcher::SketchObject", "Sketch004")
sketch5.AttachmentSupport = (doc.getObject("XY_Plane"), [""])
sketch5.MapMode = "FlatFace"
sketch5.AttachmentOffset = App.Placement(App.Vector(0, 0, 13), App.Rotation())
sketch5.addGeometry([
    Part.Circle(App.Vector(38.3, 104, 0), App.Vector(0, 0, 1), 2),
    Part.Circle(App.Vector(71.7, 88.5, 0), App.Vector(0, 0, 1), 2),
], False)
sketch5.addConstraint([
    Sketcher.Constraint("Equal", 0, 1),
    Sketcher.Constraint("Diameter", 0, 4.0),
    Sketcher.Constraint("DistanceX", -1, 1, 0, 3, 38.323937),
    Sketcher.Constraint("DistanceY", -1, 1, 0, 3, 104.026176),
    Sketcher.Constraint("DistanceX", -1, 1, 1, 3, 71.676063),
    Sketcher.Constraint("DistanceY", -1, 1, 1, 3, 88.473824),
])
sketch5.setExpression("Constraints[1]", "Params.sketch5_diameter")
pocket2 = body.newObject("PartDesign::Pocket", "Pocket001")
pocket2.Profile = sketch5
pocket2.Type = "ThroughAll"

# Sketch on XZ plane
sketch6 = body.newObject("Sketcher::SketchObject", "Sketch005")
sketch6.AttachmentSupport = (doc.getObject("XZ_Plane"), [""])
sketch6.MapMode = "FlatFace"
sketch6.AttachmentOffset = App.Placement(App.Vector(0, 0, -90), App.Rotation())
sketch6.addGeometry([
    Part.Circle(App.Vector(-70, 8, 0), App.Vector(0, 0, 1), 5),
    Part.Circle(App.Vector(-35, 8, 0), App.Vector(0, 0, 1), 5),
], False)
sketch6.addConstraint([
    Sketcher.Constraint("Equal", 0, 1),
    Sketcher.Constraint("Horizontal", 0, 3, 1, 3),
    Sketcher.Constraint("Diameter", 0, 10.0),
    Sketcher.Constraint("DistanceX", 0, 3, 1, 3, 35.0),
    Sketcher.Constraint("DistanceY", -1, 1, 0, 3, 8.5),
    Sketcher.Constraint("DistanceX", 0, 3, -1, 1, 70.220969),
])
sketch6.setExpression("Constraints[2]", "Params.sketch6_diameter")
pocket3 = body.newObject("PartDesign::Pocket", "Pocket002")
pocket3.Profile = sketch6
pocket3.setExpression("Length", "Params.pocket3_length")
pocket3.Reversed = True
doc.recompute()

fillet7 = body.newObject("PartDesign::Fillet", "Fillet006")
fillet7.Base = (pocket3, edges_at(pocket3, [(-62.721, 90, 8.5), (-42.721, 90, 8.5)]))
fillet7.setExpression("Radius", "Params.fillet7_radius")
doc.recompute()

chamfer = body.newObject("PartDesign::Chamfer", "Chamfer")
chamfer.Base = (fillet7, edges_at(fillet7, [(-70.221, 90, 3.5), (-35.221, 90, 3.5)]))
chamfer.setExpression("Size", "Params.chamfer_size")

doc.recompute()
